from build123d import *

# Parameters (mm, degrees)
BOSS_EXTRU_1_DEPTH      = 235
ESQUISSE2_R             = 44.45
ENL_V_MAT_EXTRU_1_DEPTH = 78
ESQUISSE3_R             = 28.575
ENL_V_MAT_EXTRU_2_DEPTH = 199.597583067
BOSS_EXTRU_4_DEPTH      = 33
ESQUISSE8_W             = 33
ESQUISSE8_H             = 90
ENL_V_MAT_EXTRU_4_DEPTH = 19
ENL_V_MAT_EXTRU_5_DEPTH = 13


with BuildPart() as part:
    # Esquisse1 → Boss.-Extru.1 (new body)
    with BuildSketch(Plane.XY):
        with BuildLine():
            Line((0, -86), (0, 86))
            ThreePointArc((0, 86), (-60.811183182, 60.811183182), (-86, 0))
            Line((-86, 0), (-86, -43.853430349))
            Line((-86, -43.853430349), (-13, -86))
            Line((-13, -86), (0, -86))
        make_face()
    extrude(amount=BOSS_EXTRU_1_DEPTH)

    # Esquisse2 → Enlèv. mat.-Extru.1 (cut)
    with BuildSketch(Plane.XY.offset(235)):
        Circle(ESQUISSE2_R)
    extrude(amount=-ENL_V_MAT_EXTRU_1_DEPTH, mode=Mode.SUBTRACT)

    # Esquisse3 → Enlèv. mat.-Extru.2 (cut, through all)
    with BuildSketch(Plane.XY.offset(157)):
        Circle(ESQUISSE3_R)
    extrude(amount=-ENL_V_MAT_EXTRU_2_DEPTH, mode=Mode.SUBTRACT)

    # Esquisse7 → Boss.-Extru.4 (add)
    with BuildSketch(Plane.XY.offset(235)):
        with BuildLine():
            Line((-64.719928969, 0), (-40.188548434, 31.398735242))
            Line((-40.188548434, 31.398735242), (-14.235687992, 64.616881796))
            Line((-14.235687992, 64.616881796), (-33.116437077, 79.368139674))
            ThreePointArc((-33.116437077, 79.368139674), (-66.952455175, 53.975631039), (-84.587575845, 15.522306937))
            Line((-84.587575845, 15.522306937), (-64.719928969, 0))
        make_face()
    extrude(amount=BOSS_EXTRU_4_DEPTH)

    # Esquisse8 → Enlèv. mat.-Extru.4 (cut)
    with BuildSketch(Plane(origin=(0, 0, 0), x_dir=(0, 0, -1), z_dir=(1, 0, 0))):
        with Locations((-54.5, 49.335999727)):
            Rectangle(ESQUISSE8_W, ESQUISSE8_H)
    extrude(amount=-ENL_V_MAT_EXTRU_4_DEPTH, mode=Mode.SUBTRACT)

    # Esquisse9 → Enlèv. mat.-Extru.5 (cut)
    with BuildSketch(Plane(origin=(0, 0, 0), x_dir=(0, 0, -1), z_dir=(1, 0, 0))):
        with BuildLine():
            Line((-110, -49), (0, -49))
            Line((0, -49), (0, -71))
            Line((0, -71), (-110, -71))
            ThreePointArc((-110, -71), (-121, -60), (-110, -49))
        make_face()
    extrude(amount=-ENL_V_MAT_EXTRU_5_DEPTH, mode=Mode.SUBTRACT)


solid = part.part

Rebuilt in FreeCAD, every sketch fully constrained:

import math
import FreeCAD as App
import Part
import Sketcher
Q = App.Units.Quantity

doc = App.newDocument("Part")
body = doc.addObject("PartDesign::Body", "Body")

# Sketch on XY plane
sketch1 = body.newObject("Sketcher::SketchObject", "Sketch")
sketch1.AttachmentSupport = (doc.getObject("XY_Plane"), [""])
sketch1.MapMode = "FlatFace"
sketch1.addGeometry([
    Part.LineSegment(App.Vector(0, -86, 0), App.Vector(0, 86, 0)),  # 0
    Part.ArcOfCircle(Part.Circle(App.Vector(0, 0, 0), App.Vector(0, 0, 1), 86), math.radians(90), math.radians(180)),  # 1
    Part.LineSegment(App.Vector(-86, 0, 0), App.Vector(-86, -43.85343, 0)),  # 2
    Part.LineSegment(App.Vector(-86, -43.85343, 0), App.Vector(-13, -86, 0)),  # 3
    Part.LineSegment(App.Vector(-13, -86, 0), App.Vector(0, -86, 0)),  # 4
], False)
sketch1.addConstraint([
    Sketcher.Constraint("Coincident", 0, 2, 1, 1),
    Sketcher.Constraint("Tangent", 1, 2, 2, 1),
    Sketcher.Constraint("Coincident", 2, 2, 3, 1),
    Sketcher.Constraint("Coincident", 3, 2, 4, 1),
    Sketcher.Constraint("Coincident", 4, 2, 0, 1),
    Sketcher.Constraint("Vertical", 0),
    Sketcher.Constraint("Vertical", 2),
    Sketcher.Constraint("Horizontal", 4),
    Sketcher.Constraint("Coincident", 1, 3, -1, 1),
    Sketcher.Constraint("Symmetric", 0, 2, 4, 2, -1, 1),
    Sketcher.Constraint("Radius", 1, Q("86 mm")),
    Sketcher.Constraint("DistanceX", 4, 1, 4, 2, Q("13 mm")),
    Sketcher.Constraint("Angle", 3, Q("-30 deg")),
])
pad1 = body.newObject("PartDesign::Pad", "Pad")
pad1.Profile = sketch1
pad1.Length = 235

# Sketch on XY plane
sketch2 = body.newObject("Sketcher::SketchObject", "Sketch001")
sketch2.AttachmentSupport = (doc.getObject("XY_Plane"), [""])
sketch2.MapMode = "FlatFace"
sketch2.AttachmentOffset = App.Placement(App.Vector(0, 0, 235), App.Rotation())
sketch2.addGeometry(Part.Circle(App.Vector(0, 0, 0), App.Vector(0, 0, 1), 44.45), False)
sketch2.addConstraint([
    Sketcher.Constraint("Coincident", 0, 3, -1, 1),
    Sketcher.Constraint("Diameter", 0, Q("88.9 mm")),
])
pocket1 = body.newObject("PartDesign::Pocket", "Pocket")
pocket1.Profile = sketch2
pocket1.Length = 78

# Sketch on XY plane
sketch3 = body.newObject("Sketcher::SketchObject", "Sketch002")
sketch3.AttachmentSupport = (doc.getObject("XY_Plane"), [""])
sketch3.MapMode = "FlatFace"
sketch3.AttachmentOffset = App.Placement(App.Vector(0, 0, 157), App.Rotation())
sketch3.addGeometry(Part.Circle(App.Vector(0, 0, 0), App.Vector(0, 0, 1), 28.575), False)
sketch3.addConstraint([
    Sketcher.Constraint("Coincident", 0, 3, -1, 1),
    Sketcher.Constraint("Diameter", 0, Q("57.15 mm")),
])
pocket2 = body.newObject("PartDesign::Pocket", "Pocket001")
pocket2.Profile = sketch3
pocket2.Type = "ThroughAll"

# Sketch on XY plane
sketch4 = body.newObject("Sketcher::SketchObject", "Sketch003")
sketch4.AttachmentSupport = (doc.getObject("XY_Plane"), [""])
sketch4.MapMode = "FlatFace"
sketch4.AttachmentOffset = App.Placement(App.Vector(0, 0, 235), App.Rotation())
sketch4.addGeometry([
    Part.LineSegment(App.Vector(-64.719929, 0, 0), App.Vector(-40.188548, 31.398735, 0)),  # 0
    Part.LineSegment(App.Vector(-40.188548, 31.398735, 0), App.Vector(-14.235688, 64.616882, 0)),  # 1
    Part.LineSegment(App.Vector(-14.235688, 64.616882, 0), App.Vector(-33.116437, 79.36814, 0)),  # 2
    Part.ArcOfCircle(Part.Circle(App.Vector(0, 0, 0), App.Vector(0, 0, 1), 86), math.radians(112.648387), math.radians(169.601585)),  # 3
    Part.LineSegment(App.Vector(-84.587576, 15.522307, 0), App.Vector(-64.719929, 0, 0)),  # 4
], False)
sketch4.addConstraint([
    Sketcher.Constraint("Coincident", 0, 2, 1, 1),
    Sketcher.Constraint("Coincident", 1, 2, 2, 1),
    Sketcher.Constraint("Coincident", 2, 2, 3, 1),
    Sketcher.Constraint("Coincident", 3, 2, 4, 1),
    Sketcher.Constraint("Coincident", 4, 2, 0, 1),
    Sketcher.Constraint("Coincident", 3, 3, -1, 1),
    Sketcher.Constraint("PointOnObject", 4, 2, -1),
    Sketcher.Constraint("Parallel", 0, 1),
    Sketcher.Constraint("Perpendicular", 1, 2),
    Sketcher.Constraint("Parallel", 2, 4),
    Sketcher.Constraint("Radius", 3, Q("86 mm")),
    Sketcher.Constraint("Angle", 0, Q("52 deg")),
    Sketcher.Constraint("DistanceX", 0, 2, -1, 1, Q("40.188548 mm")),
    Sketcher.Constraint("DistanceY", -1, 1, 1, 2, Q("64.616882 mm")),
    Sketcher.Constraint("DistanceY", -1, 1, 2, 2, Q("79.36814 mm")),
])
pad2 = body.newObject("PartDesign::Pad", "Pad001")
pad2.Profile = sketch4
pad2.Length = 33

# Sketch on YZ plane
sketch5 = body.newObject("Sketcher::SketchObject", "Sketch004")
sketch5.AttachmentSupport = (doc.getObject("YZ_Plane"), [""])
sketch5.MapMode = "FlatFace"
sketch5.addGeometry([
    Part.LineSegment(App.Vector(94.336, 71, 0), App.Vector(4.336, 71, 0)),
    Part.LineSegment(App.Vector(4.336, 71, 0), App.Vector(4.336, 38, 0)),
    Part.LineSegment(App.Vector(4.336, 38, 0), App.Vector(94.336, 38, 0)),
    Part.LineSegment(App.Vector(94.336, 38, 0), App.Vector(94.336, 71, 0)),
], False)
sketch5.addConstraint([
    Sketcher.Constraint("Coincident", 0, 2, 1, 1),
    Sketcher.Constraint("Coincident", 1, 2, 2, 1),
    Sketcher.Constraint("Coincident", 2, 2, 3, 1),
    Sketcher.Constraint("Coincident", 3, 2, 0, 1),
    Sketcher.Constraint("Horizontal", 0),
    Sketcher.Constraint("Vertical", 1),
    Sketcher.Constraint("Horizontal", 2),
    Sketcher.Constraint("Vertical", 3),
    Sketcher.Constraint("DistanceX", 0, 2, 0, 1, Q("90 mm")),
    Sketcher.Constraint("DistanceY", 1, 2, 1, 1, Q("33 mm")),
    Sketcher.Constraint("DistanceY", -1, 1, 0, 2, Q("71 mm")),
    Sketcher.Constraint("DistanceX", -1, 1, 0, 2, Q("4.336 mm")),
])
pocket3 = body.newObject("PartDesign::Pocket", "Pocket002")
pocket3.Profile = sketch5
pocket3.Length = 19

# Sketch on YZ plane
sketch6 = body.newObject("Sketcher::SketchObject", "Sketch005")
sketch6.AttachmentSupport = (doc.getObject("YZ_Plane"), [""])
sketch6.MapMode = "FlatFace"
sketch6.addGeometry([
    Part.LineSegment(App.Vector(-49, 0, 0), App.Vector(-49, 110, 0)),
    Part.ArcOfCircle(Part.Circle(App.Vector(-60, 110, 0), App.Vector(0, 0, 1), 11), math.radians(0), math.radians(180)),
    Part.LineSegment(App.Vector(-71, 110, 0), App.Vector(-71, 0, 0)),
    Part.LineSegment(App.Vector(-71, 0, 0), App.Vector(-49, 0, 0)),
], False)
sketch6.addConstraint([
    Sketcher.Constraint("Tangent", 0, 2, 1, 1),
    Sketcher.Constraint("Tangent", 1, 2, 2, 1),
    Sketcher.Constraint("Coincident", 2, 2, 3, 1),
    Sketcher.Constraint("Coincident", 3, 2, 0, 1),
    Sketcher.Constraint("Vertical", 0),
    Sketcher.Constraint("Vertical", 2),
    Sketcher.Constraint("Horizontal", 3),
    Sketcher.Constraint("PointOnObject", 2, 2, -1),
    Sketcher.Constraint("Radius", 1, Q("11 mm")),
    Sketcher.Constraint("DistanceY", 0, 1, 0, 2, Q("110 mm")),
    Sketcher.Constraint("DistanceX", 1, 3, -1, 1, Q("60 mm")),
])
pocket4 = body.newObject("PartDesign::Pocket", "Pocket003")
pocket4.Profile = sketch6
pocket4.Length = 13

doc.recompute()
